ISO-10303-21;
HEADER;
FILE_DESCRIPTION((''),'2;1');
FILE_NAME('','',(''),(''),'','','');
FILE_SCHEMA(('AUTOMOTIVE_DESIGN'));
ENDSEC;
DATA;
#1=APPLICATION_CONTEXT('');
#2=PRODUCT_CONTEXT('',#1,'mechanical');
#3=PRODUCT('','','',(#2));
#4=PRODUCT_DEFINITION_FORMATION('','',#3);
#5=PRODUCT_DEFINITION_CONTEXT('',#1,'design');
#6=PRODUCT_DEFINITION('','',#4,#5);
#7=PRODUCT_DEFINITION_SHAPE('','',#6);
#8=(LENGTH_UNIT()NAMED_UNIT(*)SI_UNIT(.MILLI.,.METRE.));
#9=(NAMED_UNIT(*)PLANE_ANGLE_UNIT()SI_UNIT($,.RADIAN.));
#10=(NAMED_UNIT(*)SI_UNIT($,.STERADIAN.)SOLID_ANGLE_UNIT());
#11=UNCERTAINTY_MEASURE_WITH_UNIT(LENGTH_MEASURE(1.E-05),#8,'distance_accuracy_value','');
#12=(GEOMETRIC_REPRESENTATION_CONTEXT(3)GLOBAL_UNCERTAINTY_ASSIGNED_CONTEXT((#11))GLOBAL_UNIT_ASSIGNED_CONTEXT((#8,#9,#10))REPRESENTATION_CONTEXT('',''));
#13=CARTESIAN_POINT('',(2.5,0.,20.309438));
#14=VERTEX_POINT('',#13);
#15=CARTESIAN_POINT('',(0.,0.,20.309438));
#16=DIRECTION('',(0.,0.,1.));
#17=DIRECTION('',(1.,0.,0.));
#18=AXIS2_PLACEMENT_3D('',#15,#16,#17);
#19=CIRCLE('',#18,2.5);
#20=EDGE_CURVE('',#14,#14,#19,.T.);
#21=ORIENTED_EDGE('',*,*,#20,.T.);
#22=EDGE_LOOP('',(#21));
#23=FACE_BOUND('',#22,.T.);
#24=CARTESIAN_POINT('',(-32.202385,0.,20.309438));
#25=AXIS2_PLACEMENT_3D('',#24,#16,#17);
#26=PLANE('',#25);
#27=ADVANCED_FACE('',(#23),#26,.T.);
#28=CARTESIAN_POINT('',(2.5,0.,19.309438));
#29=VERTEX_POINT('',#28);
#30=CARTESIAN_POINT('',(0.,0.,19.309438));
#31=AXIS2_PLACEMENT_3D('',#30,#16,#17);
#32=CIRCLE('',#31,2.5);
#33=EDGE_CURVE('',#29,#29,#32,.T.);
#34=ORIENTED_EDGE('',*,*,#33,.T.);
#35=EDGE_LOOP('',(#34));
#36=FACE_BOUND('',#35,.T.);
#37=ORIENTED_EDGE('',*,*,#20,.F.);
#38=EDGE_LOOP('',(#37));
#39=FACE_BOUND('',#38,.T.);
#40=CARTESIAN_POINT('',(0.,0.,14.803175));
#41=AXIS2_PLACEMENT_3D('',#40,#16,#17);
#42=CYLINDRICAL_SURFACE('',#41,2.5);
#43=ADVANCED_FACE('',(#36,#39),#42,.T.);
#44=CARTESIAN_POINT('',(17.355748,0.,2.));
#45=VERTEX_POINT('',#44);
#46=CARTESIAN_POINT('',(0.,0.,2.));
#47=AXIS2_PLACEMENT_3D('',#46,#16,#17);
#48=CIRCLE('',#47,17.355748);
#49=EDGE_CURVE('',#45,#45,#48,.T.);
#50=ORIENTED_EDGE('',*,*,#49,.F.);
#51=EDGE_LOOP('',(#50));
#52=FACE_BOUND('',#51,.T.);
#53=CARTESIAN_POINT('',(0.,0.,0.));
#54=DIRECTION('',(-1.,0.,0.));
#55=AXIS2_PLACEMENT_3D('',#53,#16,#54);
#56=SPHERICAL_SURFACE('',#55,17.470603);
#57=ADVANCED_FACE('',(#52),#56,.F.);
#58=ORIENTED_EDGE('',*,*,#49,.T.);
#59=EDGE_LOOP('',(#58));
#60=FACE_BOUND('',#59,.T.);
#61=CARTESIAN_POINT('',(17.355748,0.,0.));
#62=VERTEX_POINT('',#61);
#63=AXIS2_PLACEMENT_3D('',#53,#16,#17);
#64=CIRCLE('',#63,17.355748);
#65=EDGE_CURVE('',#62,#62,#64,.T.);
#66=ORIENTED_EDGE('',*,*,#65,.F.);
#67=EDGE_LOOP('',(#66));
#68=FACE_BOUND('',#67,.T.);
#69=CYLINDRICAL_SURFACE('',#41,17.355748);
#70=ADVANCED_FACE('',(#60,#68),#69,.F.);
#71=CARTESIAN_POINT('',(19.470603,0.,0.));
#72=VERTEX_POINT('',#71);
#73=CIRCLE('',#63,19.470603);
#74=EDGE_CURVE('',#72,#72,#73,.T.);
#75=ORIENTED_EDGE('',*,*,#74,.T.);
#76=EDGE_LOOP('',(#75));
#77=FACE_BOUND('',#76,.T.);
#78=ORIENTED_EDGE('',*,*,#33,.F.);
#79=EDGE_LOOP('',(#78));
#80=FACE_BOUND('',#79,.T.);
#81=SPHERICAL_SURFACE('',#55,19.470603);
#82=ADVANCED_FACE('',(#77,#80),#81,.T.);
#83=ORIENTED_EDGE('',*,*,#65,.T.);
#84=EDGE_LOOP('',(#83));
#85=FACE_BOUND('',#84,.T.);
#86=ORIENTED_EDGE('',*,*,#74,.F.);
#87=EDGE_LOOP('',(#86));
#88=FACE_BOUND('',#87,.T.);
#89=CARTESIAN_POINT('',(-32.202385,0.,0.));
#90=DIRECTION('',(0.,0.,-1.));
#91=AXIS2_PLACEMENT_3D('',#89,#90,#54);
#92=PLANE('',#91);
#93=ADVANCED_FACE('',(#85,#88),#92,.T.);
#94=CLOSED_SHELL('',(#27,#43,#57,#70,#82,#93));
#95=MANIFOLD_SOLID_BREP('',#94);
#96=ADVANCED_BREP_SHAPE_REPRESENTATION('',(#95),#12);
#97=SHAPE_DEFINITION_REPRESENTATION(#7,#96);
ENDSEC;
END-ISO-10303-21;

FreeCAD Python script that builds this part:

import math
import FreeCAD as App
import Part
import Sketcher
from FreeCAD import Vector
Q = App.Units.Quantity

doc = App.newDocument("Part")
body = doc.addObject("PartDesign::Body", "Body")

# Sketch on XZ plane
sketch1 = doc.addObject("Sketcher::SketchObject", "Sketch")
body.addObject(sketch1)
sketch1.AttachmentSupport = (doc.XZ_Plane, [""])
sketch1.MapMode = "FlatFace"
sketch1.addGeometry(Part.LineSegment(Vector(-17.4, 0, 0), Vector(-19.5, 0, 0)), False)
sketch1.addGeometry(Part.ArcOfCircle(Part.Circle(Vector(0, 0, 0), Vector(0, 0, 1), 19.5), math.radians(97), math.radians(180)), False)
sketch1.addGeometry(Part.LineSegment(Vector(-2.5, 19.3, 0), Vector(-2.5, 20.3, 0)), False)
sketch1.addGeometry(Part.LineSegment(Vector(-2.5, 20.3, 0), Vector(0, 20.3, 0)), False)
sketch1.addGeometry(Part.LineSegment(Vector(0, 20.3, 0), Vector(0, 17.5, 0)), False)
sketch1.addGeometry(Part.ArcOfCircle(Part.Circle(Vector(0, 0, 0), Vector(0, 0, 1), 17.5), math.radians(90), math.radians(173)), False)
sketch1.addGeometry(Part.LineSegment(Vector(-17.4, 2, 0), Vector(-17.4, 0, 0)), False)
sketch1.addConstraint(Sketcher.Constraint("Coincident", 0, 2, 1, 2))
sketch1.addConstraint(Sketcher.Constraint("Coincident", 1, 1, 2, 1))
sketch1.addConstraint(Sketcher.Constraint("Coincident", 2, 2, 3, 1))
sketch1.addConstraint(Sketcher.Constraint("Coincident", 3, 2, 4, 1))
sketch1.addConstraint(Sketcher.Constraint("Coincident", 4, 2, 5, 1))
sketch1.addConstraint(Sketcher.Constraint("Coincident", 5, 2, 6, 1))
sketch1.addConstraint(Sketcher.Constraint("Coincident", 6, 2, 0, 1))
sketch1.addConstraint(Sketcher.Constraint("Horizontal", 0))
sketch1.addConstraint(Sketcher.Constraint("Vertical", 2))
sketch1.addConstraint(Sketcher.Constraint("Horizontal", 3))
sketch1.addConstraint(Sketcher.Constraint("Vertical", 4))
sketch1.addConstraint(Sketcher.Constraint("Vertical", 6))
sketch1.addConstraint(Sketcher.Constraint("Coincident", 1, 3, -1, 1))
sketch1.addConstraint(Sketcher.Constraint("Coincident", 5, 3, -1, 1))
sketch1.addConstraint(Sketcher.Constraint("PointOnObject", 0, 2, -1))
sketch1.addConstraint(Sketcher.Constraint("PointOnObject", 3, 2, -2))
sketch1.addConstraint(Sketcher.Constraint("DistanceY", 2, 1, 2, 2, Q("1 mm")))
sketch1.addConstraint(Sketcher.Constraint("DistanceY", 6, 2, 6, 1, Q("2 mm")))
sketch1.addConstraint(Sketcher.Constraint("DistanceX", 3, 1, 3, 2, Q("2.5 mm")))
sketch1.addConstraint(Sketcher.Constraint("Radius", 1, Q("19.470603 mm")))
sketch1.addConstraint(Sketcher.Constraint("Radius", 5, Q("17.470603 mm")))
revolution = doc.addObject("PartDesign::Revolution", "Revolution")
body.addObject(revolution)
revolution.Profile = sketch1
revolution.ReferenceAxis = (sketch1, ["V_Axis"])
revolution.Angle = 360

doc.recompute()
